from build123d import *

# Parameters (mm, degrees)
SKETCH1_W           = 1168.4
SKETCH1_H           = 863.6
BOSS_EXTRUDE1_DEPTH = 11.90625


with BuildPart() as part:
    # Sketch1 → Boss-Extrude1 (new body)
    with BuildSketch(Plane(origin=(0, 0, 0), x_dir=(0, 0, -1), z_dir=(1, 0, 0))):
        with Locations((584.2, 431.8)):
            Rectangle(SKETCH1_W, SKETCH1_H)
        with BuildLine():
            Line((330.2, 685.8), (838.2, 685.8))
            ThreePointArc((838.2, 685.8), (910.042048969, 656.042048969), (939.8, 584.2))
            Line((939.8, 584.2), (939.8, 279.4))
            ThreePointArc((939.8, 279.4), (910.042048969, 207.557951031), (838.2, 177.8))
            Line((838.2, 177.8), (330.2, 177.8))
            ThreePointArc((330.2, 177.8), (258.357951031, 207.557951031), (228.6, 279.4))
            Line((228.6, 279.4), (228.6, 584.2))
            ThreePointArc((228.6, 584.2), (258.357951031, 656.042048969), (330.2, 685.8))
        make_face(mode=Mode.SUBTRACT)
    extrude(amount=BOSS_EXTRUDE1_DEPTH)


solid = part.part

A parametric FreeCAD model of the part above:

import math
import FreeCAD as App
import Part
import Sketcher
Q = App.Units.Quantity


def add_polygon(sketch, points):
    """Adds a closed chain of lines whose ends are joined by coincident constraints."""
    first, n = sketch.GeometryCount, len(points)
    for a, b in zip(points, points[1:] + points[:1]):
        sketch.addGeometry(Part.LineSegment(App.Vector(*a, 0), App.Vector(*b, 0)), False)
    for i in range(n):
        sketch.addConstraint(Sketcher.Constraint("Coincident", first + i, 2, first + (i + 1) % n, 1))

doc = App.newDocument("Part")
body = doc.addObject("PartDesign::Body", "Body")

sketch1 = doc.addObject("Sketcher::SketchObject", "Sketch")
body.addObject(sketch1)
sketch1.AttachmentSupport = (doc.YZ_Plane, [""])
sketch1.MapMode = "FlatFace"
add_polygon(sketch1, [(863.6, 0), (0, 0), (0, -1168.4), (863.6, -1168.4)])
sketch1.addGeometry(Part.ArcOfCircle(Part.Circle(App.Vector(584.2, -330.2, 0), App.Vector(0, 0, 1), 101.6), math.radians(0), math.radians(90)), False)
sketch1.addGeometry(Part.LineSegment(App.Vector(685.8, -330.2, 0), App.Vector(685.8, -838.2, 0)), False)
sketch1.addGeometry(Part.ArcOfCircle(Part.Circle(App.Vector(584.2, -838.2, 0), App.Vector(0, 0, 1), 101.6), math.radians(-90), math.radians(0)), False)
sketch1.addGeometry(Part.LineSegment(App.Vector(584.2, -939.8, 0), App.Vector(279.4, -939.8, 0)), False)
sketch1.addGeometry(Part.ArcOfCircle(Part.Circle(App.Vector(279.4, -838.2, 0), App.Vector(0, 0, 1), 101.6), math.radians(180), math.radians(270)), False)
sketch1.addGeometry(Part.LineSegment(App.Vector(177.8, -838.2, 0), App.Vector(177.8, -330.2, 0)), False)
sketch1.addGeometry(Part.ArcOfCircle(Part.Circle(App.Vector(279.4, -330.2, 0), App.Vector(0, 0, 1), 101.6), math.radians(90), math.radians(180)), False)
sketch1.addGeometry(Part.LineSegment(App.Vector(279.4, -228.6, 0), App.Vector(584.2, -228.6, 0)), False)
sketch1.addConstraint(Sketcher.Constraint("Tangent", 4, 1, 5, 1))
sketch1.addConstraint(Sketcher.Constraint("Tangent", 5, 2, 6, 2))
sketch1.addConstraint(Sketcher.Constraint("Tangent", 6, 1, 7, 1))
sketch1.addConstraint(Sketcher.Constraint("Tangent", 7, 2, 8, 2))
sketch1.addConstraint(Sketcher.Constraint("Tangent", 8, 1, 9, 1))
sketch1.addConstraint(Sketcher.Constraint("Tangent", 9, 2, 10, 2))
sketch1.addConstraint(Sketcher.Constraint("Tangent", 10, 1, 11, 1))
sketch1.addConstraint(Sketcher.Constraint("Tangent", 11, 2, 4, 2))
sketch1.addConstraint(Sketcher.Constraint("Horizontal", 0))
sketch1.addConstraint(Sketcher.Constraint("Vertical", 1))
sketch1.addConstraint(Sketcher.Constraint("Horizontal", 2))
sketch1.addConstraint(Sketcher.Constraint("Vertical", 3))
sketch1.addConstraint(Sketcher.Constraint("Vertical", 5))
sketch1.addConstraint(Sketcher.Constraint("Horizontal", 7))
sketch1.addConstraint(Sketcher.Constraint("Vertical", 9))
sketch1.addConstraint(Sketcher.Constraint("Horizontal", 11))
sketch1.addConstraint(Sketcher.Constraint("Coincident", 0, 2, -1, 1))
sketch1.addConstraint(Sketcher.Constraint("Equal", 4, 6))
sketch1.addConstraint(Sketcher.Constraint("Equal", 6, 8))
sketch1.addConstraint(Sketcher.Constraint("Equal", 8, 10))
sketch1.addConstraint(Sketcher.Constraint("Radius", 4, Q("4 in")))
sketch1.addConstraint(Sketcher.Constraint("DistanceX", 0, 2, 0, 1, Q("34 in")))
sketch1.addConstraint(Sketcher.Constraint("DistanceX", 7, 2, 7, 1, Q("12 in")))
sketch1.addConstraint(Sketcher.Constraint("DistanceY", 1, 2, 1, 1, Q("46 in")))
sketch1.addConstraint(Sketcher.Constraint("DistanceY", 5, 2, 5, 1, Q("20 in")))
sketch1.addConstraint(Sketcher.Constraint("DistanceX", -1, 1, 4, 3, Q("23 in")))
sketch1.addConstraint(Sketcher.Constraint("DistanceY", 4, 3, -1, 1, Q("13 in")))
pad1 = doc.addObject("PartDesign::Pad", "Pad")
body.addObject(pad1)
pad1.Profile = sketch1
pad1.Length = Q("0.46875 in")

doc.recompute()
